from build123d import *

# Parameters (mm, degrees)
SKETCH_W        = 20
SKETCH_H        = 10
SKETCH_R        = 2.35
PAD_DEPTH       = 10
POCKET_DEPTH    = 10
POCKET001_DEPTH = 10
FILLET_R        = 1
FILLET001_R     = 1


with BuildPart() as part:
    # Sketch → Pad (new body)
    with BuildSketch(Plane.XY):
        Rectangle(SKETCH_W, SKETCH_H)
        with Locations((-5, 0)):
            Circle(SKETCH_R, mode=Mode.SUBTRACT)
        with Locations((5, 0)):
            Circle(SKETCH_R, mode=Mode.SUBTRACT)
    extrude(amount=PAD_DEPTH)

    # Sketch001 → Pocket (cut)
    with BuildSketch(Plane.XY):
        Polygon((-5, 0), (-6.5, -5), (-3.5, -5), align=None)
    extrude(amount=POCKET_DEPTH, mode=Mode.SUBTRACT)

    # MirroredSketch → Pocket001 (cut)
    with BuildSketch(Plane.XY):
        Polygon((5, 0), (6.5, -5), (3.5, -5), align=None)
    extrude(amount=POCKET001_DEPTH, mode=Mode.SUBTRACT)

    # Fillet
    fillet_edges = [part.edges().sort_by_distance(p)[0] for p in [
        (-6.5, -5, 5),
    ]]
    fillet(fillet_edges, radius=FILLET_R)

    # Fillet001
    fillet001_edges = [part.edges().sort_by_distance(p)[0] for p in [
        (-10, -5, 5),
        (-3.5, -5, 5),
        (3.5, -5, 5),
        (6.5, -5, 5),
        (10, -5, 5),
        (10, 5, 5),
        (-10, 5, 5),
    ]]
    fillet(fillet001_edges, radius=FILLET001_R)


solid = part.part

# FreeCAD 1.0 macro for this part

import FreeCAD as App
import Part
import Sketcher


def edges_at(feature, points):
    """Names of the edges that pass closest to the given points."""
    edges = feature.Shape.Edges
    near = lambda p: min(range(len(edges)), key=lambda i: edges[i].distToShape(Part.Vertex(*p))[0])
    return sorted({f"Edge{near(p) + 1}" for p in points})


def add_polygon(sketch, points):
    """Adds a closed chain of lines whose ends are joined by coincident constraints."""
    first, n = sketch.GeometryCount, len(points)
    for a, b in zip(points, points[1:] + points[:1]):
        sketch.addGeometry(Part.LineSegment(App.Vector(*a, 0), App.Vector(*b, 0)), False)
    for i in range(n):
        sketch.addConstraint(Sketcher.Constraint("Coincident", first + i, 2, first + (i + 1) % n, 1))

doc = App.newDocument("Part")
body = doc.addObject("PartDesign::Body", "Body")

sketch1 = doc.addObject("Sketcher::SketchObject", "Sketch")
body.addObject(sketch1)
sketch1.AttachmentSupport = (doc.XY_Plane, [""])
sketch1.MapMode = "FlatFace"
add_polygon(sketch1, [(-10, 5), (-10, -5), (10, -5), (10, 5)])
sketch1.addGeometry(Part.Circle(App.Vector(-5, 0, 0), App.Vector(0, 0, 1), 2.4), False)
sketch1.addGeometry(Part.Circle(App.Vector(5, 0, 0), App.Vector(0, 0, 1), 2.4), False)
sketch1.addConstraint([
    Sketcher.Constraint("Vertical", 0),
    Sketcher.Constraint("Horizontal", 1),
    Sketcher.Constraint("Vertical", 2),
    Sketcher.Constraint("Horizontal", 3),
    Sketcher.Constraint("Equal", 4, 5),
    Sketcher.Constraint("Symmetric", 4, 3, 5, 3, -1, 1),
    Sketcher.Constraint("Symmetric", 0, 2, 2, 2, -1, 1),
    Sketcher.Constraint("PointOnObject", 4, 3, -1),
    Sketcher.Constraint("Diameter", 4, 4.7),
    Sketcher.Constraint("DistanceX", 1, 1, 1, 2, 20.0),
    Sketcher.Constraint("DistanceY", 0, 2, 0, 1, 10.0),
    Sketcher.Constraint("DistanceX", 4, 3, -1, 1, 5.0),
])
pad1 = doc.addObject("PartDesign::Pad", "Pad")
body.addObject(pad1)
pad1.Profile = sketch1
pad1.Length = 10

sketch2 = doc.addObject("Sketcher::SketchObject", "Sketch001")
body.addObject(sketch2)
sketch2.AttachmentSupport = (doc.XY_Plane, [""])
sketch2.MapMode = "FlatFace"
add_polygon(sketch2, [(-5, 0), (-6.5, -5), (-3.5, -5)])
sketch2.addConstraint([
    Sketcher.Constraint("Horizontal", 1),
    Sketcher.Constraint("PointOnObject", 2, 2, -1),
    Sketcher.Constraint("Equal", 0, 2),
    Sketcher.Constraint("DistanceX", 1, 1, 1, 2, 3.0),
    Sketcher.Constraint("DistanceY", 0, 2, -1, 1, 5.0),
    Sketcher.Constraint("DistanceX", 2, 2, -1, 1, 5.0),
])
pocket1 = doc.addObject("PartDesign::Pocket", "Pocket")
body.addObject(pocket1)
pocket1.Profile = sketch2
pocket1.Length = 10
pocket1.Reversed = True

sketch3 = doc.addObject("Sketcher::SketchObject", "Sketch002")
body.addObject(sketch3)
sketch3.AttachmentSupport = (doc.XY_Plane, [""])
sketch3.MapMode = "FlatFace"
add_polygon(sketch3, [(6.5, -5), (5, 0), (3.5, -5)])
sketch3.addConstraint([
    Sketcher.Constraint("Horizontal", 2),
    Sketcher.Constraint("PointOnObject", 0, 2, -1),
    Sketcher.Constraint("Equal", 0, 1),
    Sketcher.Constraint("DistanceX", 2, 1, 2, 2, 3.0),
    Sketcher.Constraint("DistanceX", -1, 1, 0, 2, 5.0),
    Sketcher.Constraint("DistanceY", 1, 2, -1, 1, 5.0),
])
pocket2 = doc.addObject("PartDesign::Pocket", "Pocket001")
body.addObject(pocket2)
pocket2.Profile = sketch3
pocket2.Length = 10
pocket2.Reversed = True
doc.recompute()

fillet = doc.addObject("PartDesign::Fillet", "Fillet")
body.addObject(fillet)
fillet.Base = (pocket2, edges_at(pocket2, [(-6.5, -5, 5)]))
fillet.Radius = 1
doc.recompute()

fillet2 = doc.addObject("PartDesign::Fillet", "Fillet001")
body.addObject(fillet2)
fillet2.Base = (fillet, edges_at(fillet, [
    (-10, -5, 5),
    (-3.5, -5, 5),
    (3.5, -5, 5),
    (6.5, -5, 5),
    (10, -5, 5),
    (10, 5, 5),
    (-10, 5, 5),
]))
fillet2.Radius = 1

doc.recompute()
